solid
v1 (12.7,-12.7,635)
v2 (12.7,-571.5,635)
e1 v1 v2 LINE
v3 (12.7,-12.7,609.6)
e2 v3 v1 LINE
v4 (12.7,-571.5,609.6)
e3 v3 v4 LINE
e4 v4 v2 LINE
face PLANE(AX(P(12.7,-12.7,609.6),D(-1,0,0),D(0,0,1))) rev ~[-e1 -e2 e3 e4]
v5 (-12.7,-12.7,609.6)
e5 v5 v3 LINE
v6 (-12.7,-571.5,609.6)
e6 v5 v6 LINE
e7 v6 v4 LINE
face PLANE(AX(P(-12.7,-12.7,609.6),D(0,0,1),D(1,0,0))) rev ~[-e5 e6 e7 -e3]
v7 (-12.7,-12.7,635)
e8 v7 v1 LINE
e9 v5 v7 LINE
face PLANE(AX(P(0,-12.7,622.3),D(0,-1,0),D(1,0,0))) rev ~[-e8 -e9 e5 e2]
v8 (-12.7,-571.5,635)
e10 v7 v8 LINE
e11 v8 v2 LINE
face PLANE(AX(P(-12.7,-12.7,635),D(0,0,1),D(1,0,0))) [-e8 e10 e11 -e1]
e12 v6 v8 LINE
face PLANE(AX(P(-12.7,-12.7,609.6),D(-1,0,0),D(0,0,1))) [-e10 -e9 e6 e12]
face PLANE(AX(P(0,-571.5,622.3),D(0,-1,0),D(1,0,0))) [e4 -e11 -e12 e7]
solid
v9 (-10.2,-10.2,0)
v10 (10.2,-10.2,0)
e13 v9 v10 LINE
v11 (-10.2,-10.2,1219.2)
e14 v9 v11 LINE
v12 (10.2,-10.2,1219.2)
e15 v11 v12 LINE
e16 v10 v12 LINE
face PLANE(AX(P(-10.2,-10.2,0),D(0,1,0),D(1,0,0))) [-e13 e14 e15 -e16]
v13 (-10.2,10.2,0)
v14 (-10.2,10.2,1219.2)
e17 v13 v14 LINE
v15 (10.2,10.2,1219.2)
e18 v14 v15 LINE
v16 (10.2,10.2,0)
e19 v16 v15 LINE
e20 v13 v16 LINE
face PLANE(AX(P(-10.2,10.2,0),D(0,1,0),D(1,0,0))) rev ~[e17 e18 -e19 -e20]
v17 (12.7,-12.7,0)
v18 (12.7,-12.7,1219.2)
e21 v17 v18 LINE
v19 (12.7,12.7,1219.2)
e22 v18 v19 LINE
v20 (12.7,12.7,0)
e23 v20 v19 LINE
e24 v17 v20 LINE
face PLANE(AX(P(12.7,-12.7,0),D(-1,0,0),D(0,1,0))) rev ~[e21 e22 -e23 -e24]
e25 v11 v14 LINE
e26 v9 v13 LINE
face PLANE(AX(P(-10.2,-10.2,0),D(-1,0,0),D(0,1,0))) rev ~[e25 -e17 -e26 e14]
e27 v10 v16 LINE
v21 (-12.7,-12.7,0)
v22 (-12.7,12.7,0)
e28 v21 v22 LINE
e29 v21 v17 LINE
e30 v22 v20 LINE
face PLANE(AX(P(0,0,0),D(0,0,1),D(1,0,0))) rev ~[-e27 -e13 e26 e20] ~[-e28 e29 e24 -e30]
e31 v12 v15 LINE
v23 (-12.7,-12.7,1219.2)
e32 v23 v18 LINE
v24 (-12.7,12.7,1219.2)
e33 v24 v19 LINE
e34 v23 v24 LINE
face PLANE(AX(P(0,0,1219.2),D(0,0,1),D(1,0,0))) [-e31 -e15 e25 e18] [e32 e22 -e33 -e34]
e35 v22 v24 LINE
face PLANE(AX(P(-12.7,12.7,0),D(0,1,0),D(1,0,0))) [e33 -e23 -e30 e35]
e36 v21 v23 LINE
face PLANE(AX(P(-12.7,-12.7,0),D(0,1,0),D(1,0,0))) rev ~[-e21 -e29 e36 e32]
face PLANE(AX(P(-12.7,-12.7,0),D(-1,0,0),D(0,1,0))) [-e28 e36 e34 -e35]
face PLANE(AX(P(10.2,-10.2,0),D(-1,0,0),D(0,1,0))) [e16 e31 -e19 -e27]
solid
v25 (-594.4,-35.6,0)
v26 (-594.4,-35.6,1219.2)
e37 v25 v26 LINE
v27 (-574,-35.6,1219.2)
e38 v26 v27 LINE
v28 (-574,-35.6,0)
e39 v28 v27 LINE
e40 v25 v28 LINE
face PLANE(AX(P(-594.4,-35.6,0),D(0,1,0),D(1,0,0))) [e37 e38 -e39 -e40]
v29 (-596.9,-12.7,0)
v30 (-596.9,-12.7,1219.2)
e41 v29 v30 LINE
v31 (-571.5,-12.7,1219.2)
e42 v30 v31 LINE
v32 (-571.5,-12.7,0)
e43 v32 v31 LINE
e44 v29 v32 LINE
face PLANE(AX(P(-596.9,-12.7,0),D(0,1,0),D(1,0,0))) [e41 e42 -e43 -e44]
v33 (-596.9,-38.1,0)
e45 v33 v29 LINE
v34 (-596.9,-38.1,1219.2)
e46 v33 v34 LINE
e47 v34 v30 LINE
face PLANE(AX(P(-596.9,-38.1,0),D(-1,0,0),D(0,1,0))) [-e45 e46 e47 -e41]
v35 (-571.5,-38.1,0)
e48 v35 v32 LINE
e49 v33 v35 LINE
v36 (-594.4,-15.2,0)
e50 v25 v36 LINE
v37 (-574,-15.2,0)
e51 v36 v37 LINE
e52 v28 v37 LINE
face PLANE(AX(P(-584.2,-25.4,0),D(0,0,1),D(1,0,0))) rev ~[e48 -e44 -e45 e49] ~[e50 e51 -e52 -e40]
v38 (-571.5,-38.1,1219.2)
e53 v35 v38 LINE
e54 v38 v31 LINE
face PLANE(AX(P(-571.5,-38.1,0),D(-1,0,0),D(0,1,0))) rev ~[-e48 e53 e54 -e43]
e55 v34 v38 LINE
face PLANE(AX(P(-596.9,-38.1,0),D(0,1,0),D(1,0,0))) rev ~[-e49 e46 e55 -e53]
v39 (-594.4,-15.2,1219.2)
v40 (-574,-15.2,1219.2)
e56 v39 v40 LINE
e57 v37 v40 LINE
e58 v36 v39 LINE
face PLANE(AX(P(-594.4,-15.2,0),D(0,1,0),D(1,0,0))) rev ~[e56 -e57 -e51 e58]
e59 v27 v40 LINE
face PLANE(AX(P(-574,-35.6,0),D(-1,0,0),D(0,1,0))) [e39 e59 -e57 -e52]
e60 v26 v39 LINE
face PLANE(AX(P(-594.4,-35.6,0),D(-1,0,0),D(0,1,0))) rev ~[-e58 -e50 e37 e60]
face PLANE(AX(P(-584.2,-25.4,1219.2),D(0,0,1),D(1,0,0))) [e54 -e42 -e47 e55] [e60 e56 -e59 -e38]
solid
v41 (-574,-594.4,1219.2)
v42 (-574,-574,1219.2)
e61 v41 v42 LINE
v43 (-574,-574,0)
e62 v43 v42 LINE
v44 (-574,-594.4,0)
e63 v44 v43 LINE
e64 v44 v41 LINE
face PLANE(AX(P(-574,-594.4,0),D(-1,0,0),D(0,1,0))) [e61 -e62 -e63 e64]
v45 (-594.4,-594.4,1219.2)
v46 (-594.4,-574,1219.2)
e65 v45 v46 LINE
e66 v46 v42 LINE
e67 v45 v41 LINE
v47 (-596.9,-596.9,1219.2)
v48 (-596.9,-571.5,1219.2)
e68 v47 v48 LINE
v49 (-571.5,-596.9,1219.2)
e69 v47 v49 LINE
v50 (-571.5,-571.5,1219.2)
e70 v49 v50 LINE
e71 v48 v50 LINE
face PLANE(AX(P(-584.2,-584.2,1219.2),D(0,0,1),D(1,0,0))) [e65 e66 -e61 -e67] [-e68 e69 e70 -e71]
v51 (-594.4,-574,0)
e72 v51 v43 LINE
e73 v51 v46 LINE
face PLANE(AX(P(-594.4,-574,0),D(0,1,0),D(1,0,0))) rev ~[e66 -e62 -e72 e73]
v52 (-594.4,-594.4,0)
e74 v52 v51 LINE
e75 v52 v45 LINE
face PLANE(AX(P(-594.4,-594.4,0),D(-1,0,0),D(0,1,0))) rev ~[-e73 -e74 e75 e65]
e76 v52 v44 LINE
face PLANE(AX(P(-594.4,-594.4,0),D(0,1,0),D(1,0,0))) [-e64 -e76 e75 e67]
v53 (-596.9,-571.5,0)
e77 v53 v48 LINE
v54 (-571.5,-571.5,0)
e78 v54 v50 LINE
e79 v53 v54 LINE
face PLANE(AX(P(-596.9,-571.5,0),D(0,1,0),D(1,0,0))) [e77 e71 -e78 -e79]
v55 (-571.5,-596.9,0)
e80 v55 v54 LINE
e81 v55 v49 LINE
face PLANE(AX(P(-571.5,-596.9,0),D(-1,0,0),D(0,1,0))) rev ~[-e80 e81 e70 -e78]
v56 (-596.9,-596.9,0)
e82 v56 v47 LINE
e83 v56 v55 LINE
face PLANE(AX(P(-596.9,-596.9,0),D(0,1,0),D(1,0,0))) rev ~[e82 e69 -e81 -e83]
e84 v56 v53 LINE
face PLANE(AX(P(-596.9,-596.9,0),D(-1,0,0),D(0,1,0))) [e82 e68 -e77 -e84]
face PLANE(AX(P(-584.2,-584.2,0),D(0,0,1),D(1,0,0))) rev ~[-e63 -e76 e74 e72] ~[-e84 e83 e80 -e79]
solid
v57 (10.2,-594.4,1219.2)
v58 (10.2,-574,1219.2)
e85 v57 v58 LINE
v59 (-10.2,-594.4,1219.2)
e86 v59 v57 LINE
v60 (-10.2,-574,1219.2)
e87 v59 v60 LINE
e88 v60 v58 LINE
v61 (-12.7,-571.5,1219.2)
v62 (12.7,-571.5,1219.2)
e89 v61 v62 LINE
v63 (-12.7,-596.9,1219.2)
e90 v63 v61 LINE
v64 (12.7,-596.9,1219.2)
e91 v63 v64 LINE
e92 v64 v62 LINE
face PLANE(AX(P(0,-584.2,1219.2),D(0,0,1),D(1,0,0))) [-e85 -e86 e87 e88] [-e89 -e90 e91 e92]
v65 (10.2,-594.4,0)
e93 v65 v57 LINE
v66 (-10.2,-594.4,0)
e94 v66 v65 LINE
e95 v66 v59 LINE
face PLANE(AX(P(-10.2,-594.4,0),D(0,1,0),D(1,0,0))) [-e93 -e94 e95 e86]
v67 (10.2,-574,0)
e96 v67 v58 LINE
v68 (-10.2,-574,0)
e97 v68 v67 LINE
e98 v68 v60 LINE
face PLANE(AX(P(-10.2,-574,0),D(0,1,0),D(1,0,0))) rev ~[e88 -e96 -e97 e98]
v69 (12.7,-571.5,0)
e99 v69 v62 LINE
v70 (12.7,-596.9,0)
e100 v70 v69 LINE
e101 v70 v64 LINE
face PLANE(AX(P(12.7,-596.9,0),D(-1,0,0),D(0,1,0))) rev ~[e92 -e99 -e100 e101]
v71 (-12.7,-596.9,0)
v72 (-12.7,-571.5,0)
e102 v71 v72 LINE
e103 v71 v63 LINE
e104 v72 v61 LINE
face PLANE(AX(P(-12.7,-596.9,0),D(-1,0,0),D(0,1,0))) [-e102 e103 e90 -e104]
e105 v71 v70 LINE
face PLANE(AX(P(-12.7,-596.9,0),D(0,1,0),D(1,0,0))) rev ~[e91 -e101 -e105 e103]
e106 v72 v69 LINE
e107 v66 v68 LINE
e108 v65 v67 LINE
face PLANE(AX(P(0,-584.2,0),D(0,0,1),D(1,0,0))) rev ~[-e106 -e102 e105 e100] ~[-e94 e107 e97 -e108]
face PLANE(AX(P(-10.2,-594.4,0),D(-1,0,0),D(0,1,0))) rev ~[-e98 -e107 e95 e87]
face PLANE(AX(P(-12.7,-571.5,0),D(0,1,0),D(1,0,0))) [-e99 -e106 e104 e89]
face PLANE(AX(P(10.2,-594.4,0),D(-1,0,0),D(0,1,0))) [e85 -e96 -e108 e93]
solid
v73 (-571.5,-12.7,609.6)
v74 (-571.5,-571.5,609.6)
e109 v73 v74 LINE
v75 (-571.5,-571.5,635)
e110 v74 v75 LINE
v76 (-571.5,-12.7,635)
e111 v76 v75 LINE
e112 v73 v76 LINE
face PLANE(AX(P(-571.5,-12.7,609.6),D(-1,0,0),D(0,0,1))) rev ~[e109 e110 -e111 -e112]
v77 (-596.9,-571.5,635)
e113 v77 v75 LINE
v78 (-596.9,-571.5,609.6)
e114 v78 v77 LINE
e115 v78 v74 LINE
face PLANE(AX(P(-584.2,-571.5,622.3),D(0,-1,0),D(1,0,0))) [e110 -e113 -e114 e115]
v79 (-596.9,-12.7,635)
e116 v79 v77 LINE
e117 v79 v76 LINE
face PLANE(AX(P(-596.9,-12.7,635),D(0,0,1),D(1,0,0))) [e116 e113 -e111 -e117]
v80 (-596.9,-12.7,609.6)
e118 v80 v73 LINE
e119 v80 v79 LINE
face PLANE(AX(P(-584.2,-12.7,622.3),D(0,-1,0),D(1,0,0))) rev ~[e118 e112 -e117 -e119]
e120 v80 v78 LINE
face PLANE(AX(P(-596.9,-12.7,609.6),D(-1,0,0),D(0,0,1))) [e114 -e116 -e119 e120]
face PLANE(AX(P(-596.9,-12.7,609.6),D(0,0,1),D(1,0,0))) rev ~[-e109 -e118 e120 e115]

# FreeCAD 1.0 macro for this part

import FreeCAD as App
import Part
import Sketcher

V = App.Vector
Q = App.Units.Quantity

doc = App.newDocument("Part")
params = doc.addObject("Spreadsheet::Sheet", "Params")
for row, (alias, value) in enumerate([
    ("sketch1_width", "1 in"),
    ("pad1_length", "48 in"),
    ("sketch2_width", "1 in"),
    ("pad2_length", "22 in"),
], start=1):
    params.set(f"A{row}", alias)
    params.set(f"B{row}", "=" + value)
    params.setAlias(f"B{row}", alias)

body = doc.addObject("PartDesign::Body", "Body")
body.AllowCompound = True

sketch1 = body.newObject("Sketcher::SketchObject", "Sketch")
sketch1.AttachmentSupport = (doc.getObject("XY_Plane"), [""])
sketch1.MapMode = "FlatFace"
sketch1.addGeometry(Part.LineSegment(V(-597, -13, 0), V(-597, -38, 0)), False)
sketch1.addGeometry(Part.LineSegment(V(-597, -38, 0), V(-572, -38, 0)), False)
sketch1.addGeometry(Part.LineSegment(V(-572, -38, 0), V(-572, -13, 0)), False)
sketch1.addGeometry(Part.LineSegment(V(-572, -13, 0), V(-597, -13, 0)), False)
sketch1.addGeometry(Part.LineSegment(V(-574, -36, 0), V(-594, -36, 0)), False)
sketch1.addGeometry(Part.LineSegment(V(-594, -36, 0), V(-594, -15, 0)), False)
sketch1.addGeometry(Part.LineSegment(V(-594, -15, 0), V(-574, -15, 0)), False)
sketch1.addGeometry(Part.LineSegment(V(-574, -15, 0), V(-574, -36, 0)), False)
sketch1.addGeometry(Part.LineSegment(V(-597, -572, 0), V(-597, -597, 0)), False)
sketch1.addGeometry(Part.LineSegment(V(-597, -597, 0), V(-572, -597, 0)), False)
sketch1.addGeometry(Part.LineSegment(V(-572, -597, 0), V(-572, -572, 0)), False)
sketch1.addGeometry(Part.LineSegment(V(-572, -572, 0), V(-597, -572, 0)), False)
sketch1.addGeometry(Part.LineSegment(V(-574, -594, 0), V(-594, -594, 0)), False)
sketch1.addGeometry(Part.LineSegment(V(-594, -594, 0), V(-594, -574, 0)), False)
sketch1.addGeometry(Part.LineSegment(V(-594, -574, 0), V(-574, -574, 0)), False)
sketch1.addGeometry(Part.LineSegment(V(-574, -574, 0), V(-574, -594, 0)), False)
sketch1.addGeometry(Part.LineSegment(V(-13, -572, 0), V(-13, -597, 0)), False)
sketch1.addGeometry(Part.LineSegment(V(-13, -597, 0), V(13, -597, 0)), False)
sketch1.addGeometry(Part.LineSegment(V(13, -597, 0), V(13, -572, 0)), False)
sketch1.addGeometry(Part.LineSegment(V(13, -572, 0), V(-13, -572, 0)), False)
sketch1.addGeometry(Part.LineSegment(V(10, -594, 0), V(-10, -594, 0)), False)
sketch1.addGeometry(Part.LineSegment(V(-10, -594, 0), V(-10, -574, 0)), False)
sketch1.addGeometry(Part.LineSegment(V(-10, -574, 0), V(10, -574, 0)), False)
sketch1.addGeometry(Part.LineSegment(V(10, -574, 0), V(10, -594, 0)), False)
sketch1.addGeometry(Part.LineSegment(V(-13, 13, 0), V(-13, -13, 0)), False)
sketch1.addGeometry(Part.LineSegment(V(-13, -13, 0), V(13, -13, 0)), False)
sketch1.addGeometry(Part.LineSegment(V(13, -13, 0), V(13, 13, 0)), False)
sketch1.addGeometry(Part.LineSegment(V(13, 13, 0), V(-13, 13, 0)), False)
sketch1.addGeometry(Part.LineSegment(V(10, -10, 0), V(-10, -10, 0)), False)
sketch1.addGeometry(Part.LineSegment(V(-10, -10, 0), V(-10, 10, 0)), False)
sketch1.addGeometry(Part.LineSegment(V(-10, 10, 0), V(10, 10, 0)), False)
sketch1.addGeometry(Part.LineSegment(V(10, 10, 0), V(10, -10, 0)), False)
sketch1.addConstraint(Sketcher.Constraint("Coincident", 0, 2, 1, 1))
sketch1.addConstraint(Sketcher.Constraint("Coincident", 1, 2, 2, 1))
sketch1.addConstraint(Sketcher.Constraint("Coincident", 2, 2, 3, 1))
sketch1.addConstraint(Sketcher.Constraint("Coincident", 3, 2, 0, 1))
sketch1.addConstraint(Sketcher.Constraint("Coincident", 4, 2, 5, 1))
sketch1.addConstraint(Sketcher.Constraint("Coincident", 5, 2, 6, 1))
sketch1.addConstraint(Sketcher.Constraint("Coincident", 6, 2, 7, 1))
sketch1.addConstraint(Sketcher.Constraint("Coincident", 7, 2, 4, 1))
sketch1.addConstraint(Sketcher.Constraint("Coincident", 8, 2, 9, 1))
sketch1.addConstraint(Sketcher.Constraint("Coincident", 9, 2, 10, 1))
sketch1.addConstraint(Sketcher.Constraint("Coincident", 10, 2, 11, 1))
sketch1.addConstraint(Sketcher.Constraint("Coincident", 11, 2, 8, 1))
sketch1.addConstraint(Sketcher.Constraint("Coincident", 12, 2, 13, 1))
sketch1.addConstraint(Sketcher.Constraint("Coincident", 13, 2, 14, 1))
sketch1.addConstraint(Sketcher.Constraint("Coincident", 14, 2, 15, 1))
sketch1.addConstraint(Sketcher.Constraint("Coincident", 15, 2, 12, 1))
sketch1.addConstraint(Sketcher.Constraint("Coincident", 16, 2, 17, 1))
sketch1.addConstraint(Sketcher.Constraint("Coincident", 17, 2, 18, 1))
sketch1.addConstraint(Sketcher.Constraint("Coincident", 18, 2, 19, 1))
sketch1.addConstraint(Sketcher.Constraint("Coincident", 19, 2, 16, 1))
sketch1.addConstraint(Sketcher.Constraint("Coincident", 20, 2, 21, 1))
sketch1.addConstraint(Sketcher.Constraint("Coincident", 21, 2, 22, 1))
sketch1.addConstraint(Sketcher.Constraint("Coincident", 22, 2, 23, 1))
sketch1.addConstraint(Sketcher.Constraint("Coincident", 23, 2, 20, 1))
sketch1.addConstraint(Sketcher.Constraint("Coincident", 24, 2, 25, 1))
sketch1.addConstraint(Sketcher.Constraint("Coincident", 25, 2, 26, 1))
sketch1.addConstraint(Sketcher.Constraint("Coincident", 26, 2, 27, 1))
sketch1.addConstraint(Sketcher.Constraint("Coincident", 27, 2, 24, 1))
sketch1.addConstraint(Sketcher.Constraint("Coincident", 28, 2, 29, 1))
sketch1.addConstraint(Sketcher.Constraint("Coincident", 29, 2, 30, 1))
sketch1.addConstraint(Sketcher.Constraint("Coincident", 30, 2, 31, 1))
sketch1.addConstraint(Sketcher.Constraint("Coincident", 31, 2, 28, 1))
sketch1.addConstraint(Sketcher.Constraint("Vertical", 0))
sketch1.addConstraint(Sketcher.Constraint("Horizontal", 1))
sketch1.addConstraint(Sketcher.Constraint("Vertical", 2))
sketch1.addConstraint(Sketcher.Constraint("Horizontal", 3))
sketch1.addConstraint(Sketcher.Constraint("Horizontal", 4))
sketch1.addConstraint(Sketcher.Constraint("Vertical", 5))
sketch1.addConstraint(Sketcher.Constraint("Horizontal", 6))
sketch1.addConstraint(Sketcher.Constraint("Vertical", 7))
sketch1.addConstraint(Sketcher.Constraint("Vertical", 8))
sketch1.addConstraint(Sketcher.Constraint("Horizontal", 9))
sketch1.addConstraint(Sketcher.Constraint("Vertical", 10))
sketch1.addConstraint(Sketcher.Constraint("Horizontal", 11))
sketch1.addConstraint(Sketcher.Constraint("Horizontal", 12))
sketch1.addConstraint(Sketcher.Constraint("Vertical", 13))
sketch1.addConstraint(Sketcher.Constraint("Horizontal", 14))
sketch1.addConstraint(Sketcher.Constraint("Vertical", 15))
sketch1.addConstraint(Sketcher.Constraint("Vertical", 16))
sketch1.addConstraint(Sketcher.Constraint("Horizontal", 17))
sketch1.addConstraint(Sketcher.Constraint("Vertical", 18))
sketch1.addConstraint(Sketcher.Constraint("Horizontal", 19))
sketch1.addConstraint(Sketcher.Constraint("Horizontal", 20))
sketch1.addConstraint(Sketcher.Constraint("Vertical", 21))
sketch1.addConstraint(Sketcher.Constraint("Horizontal", 22))
sketch1.addConstraint(Sketcher.Constraint("Vertical", 23))
sketch1.addConstraint(Sketcher.Constraint("Vertical", 24))
sketch1.addConstraint(Sketcher.Constraint("Horizontal", 25))
sketch1.addConstraint(Sketcher.Constraint("Vertical", 26))
sketch1.addConstraint(Sketcher.Constraint("Horizontal", 27))
sketch1.addConstraint(Sketcher.Constraint("Horizontal", 28))
sketch1.addConstraint(Sketcher.Constraint("Vertical", 29))
sketch1.addConstraint(Sketcher.Constraint("Horizontal", 30))
sketch1.addConstraint(Sketcher.Constraint("Vertical", 31))
sketch1.addConstraint(Sketcher.Constraint("Symmetric", 24, 2, 26, 2, -1, 1))
sketch1.addConstraint(Sketcher.Constraint("Symmetric", 28, 2, 30, 2, -1, 1))
sketch1.addConstraint(Sketcher.Constraint("Horizontal", 9, 2, 16, 2))
sketch1.addConstraint(Sketcher.Constraint("Horizontal", 11, 2, 18, 2))
sketch1.addConstraint(Sketcher.Constraint("Horizontal", 15, 2, 20, 2))
sketch1.addConstraint(Sketcher.Constraint("Horizontal", 14, 2, 21, 2))
sketch1.addConstraint(Sketcher.Constraint("Horizontal", 3, 2, 24, 2))
sketch1.addConstraint(Sketcher.Constraint("Vertical", 3, 2, 8, 2))
sketch1.addConstraint(Sketcher.Constraint("Vertical", 2, 2, 9, 2))
sketch1.addConstraint(Sketcher.Constraint("Vertical", 5, 2, 12, 2))
sketch1.addConstraint(Sketcher.Constraint("Vertical", 7, 2, 14, 2))
sketch1.addConstraint(Sketcher.Constraint("Vertical", 19, 2, 24, 2))
sketch1.addConstraint(Sketcher.Constraint("Vertical", 18, 2, 25, 2))
sketch1.addConstraint(Sketcher.Constraint("Vertical", 21, 2, 28, 2))
sketch1.addConstraint(Sketcher.Constraint("Vertical", 23, 2, 30, 2))
sketch1.addConstraint(Sketcher.Constraint("Equal", 11, 17))
sketch1.addConstraint(Sketcher.Constraint("Equal", 14, 20))
sketch1.addConstraint(Sketcher.Constraint("Equal", 27, 0))
sketch1.addConstraint(Sketcher.Constraint("Equal", 30, 5))
sketch1.addConstraint(Sketcher.Constraint("Equal", 2, 8))
sketch1.addConstraint(Sketcher.Constraint("Equal", 7, 13))
sketch1.addConstraint(Sketcher.Constraint("Equal", 18, 24))
sketch1.addConstraint(Sketcher.Constraint("Equal", 23, 29))
sketch1.addConstraint(Sketcher.Constraint("DistanceX", 1, 1, 1, 2, Q("1 in")))
sketch1.addConstraint(Sketcher.Constraint("DistanceY", 8, 2, 0, 2, Q("22 in")))
sketch1.addConstraint(Sketcher.Constraint("DistanceX", 9, 2, 16, 2, Q("22 in")))
sketch1.addConstraint(Sketcher.Constraint("DistanceX", 4, 2, 4, 1, 20.4))
sketch1.addConstraint(Sketcher.Constraint("DistanceX", 4, 2, -1, 1, 594.4))
sketch1.addConstraint(Sketcher.Constraint("DistanceY", 4, 2, -1, 1, 35.6))
sketch1.addConstraint(Sketcher.Constraint("DistanceY", 12, 2, -1, 1, 594.4))
sketch1.setExpression("Constraints[87]", "Params.sketch1_width")
pad1 = body.newObject("PartDesign::Pad", "Pad")
pad1.Profile = sketch1
pad1.setExpression("Length", "Params.pad1_length")
body2 = doc.addObject("PartDesign::Body", "Body001")
body2.AllowCompound = True

sketch2 = body2.newObject("Sketcher::SketchObject", "Sketch001")
sketch2.AttachmentSupport = (doc.getObject("XZ_Plane001"), [""])
sketch2.MapMode = "FlatFace"
sketch2.AttachmentOffset = App.Placement(V(0, 0, 0.5 * 25.4), App.Rotation())
sketch2.addGeometry(Part.LineSegment(V(-13, 635, 0), V(-13, 610, 0)), False)
sketch2.addGeometry(Part.LineSegment(V(-13, 610, 0), V(13, 610, 0)), False)
sketch2.addGeometry(Part.LineSegment(V(13, 610, 0), V(13, 635, 0)), False)
sketch2.addGeometry(Part.LineSegment(V(13, 635, 0), V(-13, 635, 0)), False)
sketch2.addGeometry(Part.LineSegment(V(-597, 635, 0), V(-597, 610, 0)), False)
sketch2.addGeometry(Part.LineSegment(V(-597, 610, 0), V(-572, 610, 0)), False)
sketch2.addGeometry(Part.LineSegment(V(-572, 610, 0), V(-572, 635, 0)), False)
sketch2.addGeometry(Part.LineSegment(V(-572, 635, 0), V(-597, 635, 0)), False)
sketch2.addConstraint(Sketcher.Constraint("Coincident", 0, 2, 1, 1))
sketch2.addConstraint(Sketcher.Constraint("Coincident", 1, 2, 2, 1))
sketch2.addConstraint(Sketcher.Constraint("Coincident", 2, 2, 3, 1))
sketch2.addConstraint(Sketcher.Constraint("Coincident", 3, 2, 0, 1))
sketch2.addConstraint(Sketcher.Constraint("Coincident", 4, 2, 5, 1))
sketch2.addConstraint(Sketcher.Constraint("Coincident", 5, 2, 6, 1))
sketch2.addConstraint(Sketcher.Constraint("Coincident", 6, 2, 7, 1))
sketch2.addConstraint(Sketcher.Constraint("Coincident", 7, 2, 4, 1))
sketch2.addConstraint(Sketcher.Constraint("Vertical", 0))
sketch2.addConstraint(Sketcher.Constraint("Horizontal", 1))
sketch2.addConstraint(Sketcher.Constraint("Vertical", 2))
sketch2.addConstraint(Sketcher.Constraint("Horizontal", 3))
sketch2.addConstraint(Sketcher.Constraint("Vertical", 4))
sketch2.addConstraint(Sketcher.Constraint("Horizontal", 5))
sketch2.addConstraint(Sketcher.Constraint("Vertical", 6))
sketch2.addConstraint(Sketcher.Constraint("Horizontal", 7))
sketch2.addConstraint(Sketcher.Constraint("Horizontal", 1, 2, 4, 2))
sketch2.addConstraint(Sketcher.Constraint("Horizontal", 3, 2, 6, 2))
sketch2.addConstraint(Sketcher.Constraint("Equal", 3, 5))
sketch2.addConstraint(Sketcher.Constraint("Equal", 7, 0))
sketch2.addConstraint(Sketcher.Constraint("DistanceX", 1, 1, 1, 2, Q("1 in")))
sketch2.addConstraint(Sketcher.Constraint("DistanceY", -1, 1, 0, 2, Q("24 in")))
sketch2.addConstraint(Sketcher.Constraint("DistanceX", 4, 2, 0, 2, Q("23 in")))
sketch2.addConstraint(Sketcher.Constraint("DistanceX", 0, 2, -1, 1, Q("0.5 in")))
sketch2.setExpression("Constraints[20]", "Params.sketch2_width")
pad2 = body2.newObject("PartDesign::Pad", "Pad001")
pad2.Profile = sketch2
pad2.setExpression("Length", "Params.pad2_length")

doc.recompute()
